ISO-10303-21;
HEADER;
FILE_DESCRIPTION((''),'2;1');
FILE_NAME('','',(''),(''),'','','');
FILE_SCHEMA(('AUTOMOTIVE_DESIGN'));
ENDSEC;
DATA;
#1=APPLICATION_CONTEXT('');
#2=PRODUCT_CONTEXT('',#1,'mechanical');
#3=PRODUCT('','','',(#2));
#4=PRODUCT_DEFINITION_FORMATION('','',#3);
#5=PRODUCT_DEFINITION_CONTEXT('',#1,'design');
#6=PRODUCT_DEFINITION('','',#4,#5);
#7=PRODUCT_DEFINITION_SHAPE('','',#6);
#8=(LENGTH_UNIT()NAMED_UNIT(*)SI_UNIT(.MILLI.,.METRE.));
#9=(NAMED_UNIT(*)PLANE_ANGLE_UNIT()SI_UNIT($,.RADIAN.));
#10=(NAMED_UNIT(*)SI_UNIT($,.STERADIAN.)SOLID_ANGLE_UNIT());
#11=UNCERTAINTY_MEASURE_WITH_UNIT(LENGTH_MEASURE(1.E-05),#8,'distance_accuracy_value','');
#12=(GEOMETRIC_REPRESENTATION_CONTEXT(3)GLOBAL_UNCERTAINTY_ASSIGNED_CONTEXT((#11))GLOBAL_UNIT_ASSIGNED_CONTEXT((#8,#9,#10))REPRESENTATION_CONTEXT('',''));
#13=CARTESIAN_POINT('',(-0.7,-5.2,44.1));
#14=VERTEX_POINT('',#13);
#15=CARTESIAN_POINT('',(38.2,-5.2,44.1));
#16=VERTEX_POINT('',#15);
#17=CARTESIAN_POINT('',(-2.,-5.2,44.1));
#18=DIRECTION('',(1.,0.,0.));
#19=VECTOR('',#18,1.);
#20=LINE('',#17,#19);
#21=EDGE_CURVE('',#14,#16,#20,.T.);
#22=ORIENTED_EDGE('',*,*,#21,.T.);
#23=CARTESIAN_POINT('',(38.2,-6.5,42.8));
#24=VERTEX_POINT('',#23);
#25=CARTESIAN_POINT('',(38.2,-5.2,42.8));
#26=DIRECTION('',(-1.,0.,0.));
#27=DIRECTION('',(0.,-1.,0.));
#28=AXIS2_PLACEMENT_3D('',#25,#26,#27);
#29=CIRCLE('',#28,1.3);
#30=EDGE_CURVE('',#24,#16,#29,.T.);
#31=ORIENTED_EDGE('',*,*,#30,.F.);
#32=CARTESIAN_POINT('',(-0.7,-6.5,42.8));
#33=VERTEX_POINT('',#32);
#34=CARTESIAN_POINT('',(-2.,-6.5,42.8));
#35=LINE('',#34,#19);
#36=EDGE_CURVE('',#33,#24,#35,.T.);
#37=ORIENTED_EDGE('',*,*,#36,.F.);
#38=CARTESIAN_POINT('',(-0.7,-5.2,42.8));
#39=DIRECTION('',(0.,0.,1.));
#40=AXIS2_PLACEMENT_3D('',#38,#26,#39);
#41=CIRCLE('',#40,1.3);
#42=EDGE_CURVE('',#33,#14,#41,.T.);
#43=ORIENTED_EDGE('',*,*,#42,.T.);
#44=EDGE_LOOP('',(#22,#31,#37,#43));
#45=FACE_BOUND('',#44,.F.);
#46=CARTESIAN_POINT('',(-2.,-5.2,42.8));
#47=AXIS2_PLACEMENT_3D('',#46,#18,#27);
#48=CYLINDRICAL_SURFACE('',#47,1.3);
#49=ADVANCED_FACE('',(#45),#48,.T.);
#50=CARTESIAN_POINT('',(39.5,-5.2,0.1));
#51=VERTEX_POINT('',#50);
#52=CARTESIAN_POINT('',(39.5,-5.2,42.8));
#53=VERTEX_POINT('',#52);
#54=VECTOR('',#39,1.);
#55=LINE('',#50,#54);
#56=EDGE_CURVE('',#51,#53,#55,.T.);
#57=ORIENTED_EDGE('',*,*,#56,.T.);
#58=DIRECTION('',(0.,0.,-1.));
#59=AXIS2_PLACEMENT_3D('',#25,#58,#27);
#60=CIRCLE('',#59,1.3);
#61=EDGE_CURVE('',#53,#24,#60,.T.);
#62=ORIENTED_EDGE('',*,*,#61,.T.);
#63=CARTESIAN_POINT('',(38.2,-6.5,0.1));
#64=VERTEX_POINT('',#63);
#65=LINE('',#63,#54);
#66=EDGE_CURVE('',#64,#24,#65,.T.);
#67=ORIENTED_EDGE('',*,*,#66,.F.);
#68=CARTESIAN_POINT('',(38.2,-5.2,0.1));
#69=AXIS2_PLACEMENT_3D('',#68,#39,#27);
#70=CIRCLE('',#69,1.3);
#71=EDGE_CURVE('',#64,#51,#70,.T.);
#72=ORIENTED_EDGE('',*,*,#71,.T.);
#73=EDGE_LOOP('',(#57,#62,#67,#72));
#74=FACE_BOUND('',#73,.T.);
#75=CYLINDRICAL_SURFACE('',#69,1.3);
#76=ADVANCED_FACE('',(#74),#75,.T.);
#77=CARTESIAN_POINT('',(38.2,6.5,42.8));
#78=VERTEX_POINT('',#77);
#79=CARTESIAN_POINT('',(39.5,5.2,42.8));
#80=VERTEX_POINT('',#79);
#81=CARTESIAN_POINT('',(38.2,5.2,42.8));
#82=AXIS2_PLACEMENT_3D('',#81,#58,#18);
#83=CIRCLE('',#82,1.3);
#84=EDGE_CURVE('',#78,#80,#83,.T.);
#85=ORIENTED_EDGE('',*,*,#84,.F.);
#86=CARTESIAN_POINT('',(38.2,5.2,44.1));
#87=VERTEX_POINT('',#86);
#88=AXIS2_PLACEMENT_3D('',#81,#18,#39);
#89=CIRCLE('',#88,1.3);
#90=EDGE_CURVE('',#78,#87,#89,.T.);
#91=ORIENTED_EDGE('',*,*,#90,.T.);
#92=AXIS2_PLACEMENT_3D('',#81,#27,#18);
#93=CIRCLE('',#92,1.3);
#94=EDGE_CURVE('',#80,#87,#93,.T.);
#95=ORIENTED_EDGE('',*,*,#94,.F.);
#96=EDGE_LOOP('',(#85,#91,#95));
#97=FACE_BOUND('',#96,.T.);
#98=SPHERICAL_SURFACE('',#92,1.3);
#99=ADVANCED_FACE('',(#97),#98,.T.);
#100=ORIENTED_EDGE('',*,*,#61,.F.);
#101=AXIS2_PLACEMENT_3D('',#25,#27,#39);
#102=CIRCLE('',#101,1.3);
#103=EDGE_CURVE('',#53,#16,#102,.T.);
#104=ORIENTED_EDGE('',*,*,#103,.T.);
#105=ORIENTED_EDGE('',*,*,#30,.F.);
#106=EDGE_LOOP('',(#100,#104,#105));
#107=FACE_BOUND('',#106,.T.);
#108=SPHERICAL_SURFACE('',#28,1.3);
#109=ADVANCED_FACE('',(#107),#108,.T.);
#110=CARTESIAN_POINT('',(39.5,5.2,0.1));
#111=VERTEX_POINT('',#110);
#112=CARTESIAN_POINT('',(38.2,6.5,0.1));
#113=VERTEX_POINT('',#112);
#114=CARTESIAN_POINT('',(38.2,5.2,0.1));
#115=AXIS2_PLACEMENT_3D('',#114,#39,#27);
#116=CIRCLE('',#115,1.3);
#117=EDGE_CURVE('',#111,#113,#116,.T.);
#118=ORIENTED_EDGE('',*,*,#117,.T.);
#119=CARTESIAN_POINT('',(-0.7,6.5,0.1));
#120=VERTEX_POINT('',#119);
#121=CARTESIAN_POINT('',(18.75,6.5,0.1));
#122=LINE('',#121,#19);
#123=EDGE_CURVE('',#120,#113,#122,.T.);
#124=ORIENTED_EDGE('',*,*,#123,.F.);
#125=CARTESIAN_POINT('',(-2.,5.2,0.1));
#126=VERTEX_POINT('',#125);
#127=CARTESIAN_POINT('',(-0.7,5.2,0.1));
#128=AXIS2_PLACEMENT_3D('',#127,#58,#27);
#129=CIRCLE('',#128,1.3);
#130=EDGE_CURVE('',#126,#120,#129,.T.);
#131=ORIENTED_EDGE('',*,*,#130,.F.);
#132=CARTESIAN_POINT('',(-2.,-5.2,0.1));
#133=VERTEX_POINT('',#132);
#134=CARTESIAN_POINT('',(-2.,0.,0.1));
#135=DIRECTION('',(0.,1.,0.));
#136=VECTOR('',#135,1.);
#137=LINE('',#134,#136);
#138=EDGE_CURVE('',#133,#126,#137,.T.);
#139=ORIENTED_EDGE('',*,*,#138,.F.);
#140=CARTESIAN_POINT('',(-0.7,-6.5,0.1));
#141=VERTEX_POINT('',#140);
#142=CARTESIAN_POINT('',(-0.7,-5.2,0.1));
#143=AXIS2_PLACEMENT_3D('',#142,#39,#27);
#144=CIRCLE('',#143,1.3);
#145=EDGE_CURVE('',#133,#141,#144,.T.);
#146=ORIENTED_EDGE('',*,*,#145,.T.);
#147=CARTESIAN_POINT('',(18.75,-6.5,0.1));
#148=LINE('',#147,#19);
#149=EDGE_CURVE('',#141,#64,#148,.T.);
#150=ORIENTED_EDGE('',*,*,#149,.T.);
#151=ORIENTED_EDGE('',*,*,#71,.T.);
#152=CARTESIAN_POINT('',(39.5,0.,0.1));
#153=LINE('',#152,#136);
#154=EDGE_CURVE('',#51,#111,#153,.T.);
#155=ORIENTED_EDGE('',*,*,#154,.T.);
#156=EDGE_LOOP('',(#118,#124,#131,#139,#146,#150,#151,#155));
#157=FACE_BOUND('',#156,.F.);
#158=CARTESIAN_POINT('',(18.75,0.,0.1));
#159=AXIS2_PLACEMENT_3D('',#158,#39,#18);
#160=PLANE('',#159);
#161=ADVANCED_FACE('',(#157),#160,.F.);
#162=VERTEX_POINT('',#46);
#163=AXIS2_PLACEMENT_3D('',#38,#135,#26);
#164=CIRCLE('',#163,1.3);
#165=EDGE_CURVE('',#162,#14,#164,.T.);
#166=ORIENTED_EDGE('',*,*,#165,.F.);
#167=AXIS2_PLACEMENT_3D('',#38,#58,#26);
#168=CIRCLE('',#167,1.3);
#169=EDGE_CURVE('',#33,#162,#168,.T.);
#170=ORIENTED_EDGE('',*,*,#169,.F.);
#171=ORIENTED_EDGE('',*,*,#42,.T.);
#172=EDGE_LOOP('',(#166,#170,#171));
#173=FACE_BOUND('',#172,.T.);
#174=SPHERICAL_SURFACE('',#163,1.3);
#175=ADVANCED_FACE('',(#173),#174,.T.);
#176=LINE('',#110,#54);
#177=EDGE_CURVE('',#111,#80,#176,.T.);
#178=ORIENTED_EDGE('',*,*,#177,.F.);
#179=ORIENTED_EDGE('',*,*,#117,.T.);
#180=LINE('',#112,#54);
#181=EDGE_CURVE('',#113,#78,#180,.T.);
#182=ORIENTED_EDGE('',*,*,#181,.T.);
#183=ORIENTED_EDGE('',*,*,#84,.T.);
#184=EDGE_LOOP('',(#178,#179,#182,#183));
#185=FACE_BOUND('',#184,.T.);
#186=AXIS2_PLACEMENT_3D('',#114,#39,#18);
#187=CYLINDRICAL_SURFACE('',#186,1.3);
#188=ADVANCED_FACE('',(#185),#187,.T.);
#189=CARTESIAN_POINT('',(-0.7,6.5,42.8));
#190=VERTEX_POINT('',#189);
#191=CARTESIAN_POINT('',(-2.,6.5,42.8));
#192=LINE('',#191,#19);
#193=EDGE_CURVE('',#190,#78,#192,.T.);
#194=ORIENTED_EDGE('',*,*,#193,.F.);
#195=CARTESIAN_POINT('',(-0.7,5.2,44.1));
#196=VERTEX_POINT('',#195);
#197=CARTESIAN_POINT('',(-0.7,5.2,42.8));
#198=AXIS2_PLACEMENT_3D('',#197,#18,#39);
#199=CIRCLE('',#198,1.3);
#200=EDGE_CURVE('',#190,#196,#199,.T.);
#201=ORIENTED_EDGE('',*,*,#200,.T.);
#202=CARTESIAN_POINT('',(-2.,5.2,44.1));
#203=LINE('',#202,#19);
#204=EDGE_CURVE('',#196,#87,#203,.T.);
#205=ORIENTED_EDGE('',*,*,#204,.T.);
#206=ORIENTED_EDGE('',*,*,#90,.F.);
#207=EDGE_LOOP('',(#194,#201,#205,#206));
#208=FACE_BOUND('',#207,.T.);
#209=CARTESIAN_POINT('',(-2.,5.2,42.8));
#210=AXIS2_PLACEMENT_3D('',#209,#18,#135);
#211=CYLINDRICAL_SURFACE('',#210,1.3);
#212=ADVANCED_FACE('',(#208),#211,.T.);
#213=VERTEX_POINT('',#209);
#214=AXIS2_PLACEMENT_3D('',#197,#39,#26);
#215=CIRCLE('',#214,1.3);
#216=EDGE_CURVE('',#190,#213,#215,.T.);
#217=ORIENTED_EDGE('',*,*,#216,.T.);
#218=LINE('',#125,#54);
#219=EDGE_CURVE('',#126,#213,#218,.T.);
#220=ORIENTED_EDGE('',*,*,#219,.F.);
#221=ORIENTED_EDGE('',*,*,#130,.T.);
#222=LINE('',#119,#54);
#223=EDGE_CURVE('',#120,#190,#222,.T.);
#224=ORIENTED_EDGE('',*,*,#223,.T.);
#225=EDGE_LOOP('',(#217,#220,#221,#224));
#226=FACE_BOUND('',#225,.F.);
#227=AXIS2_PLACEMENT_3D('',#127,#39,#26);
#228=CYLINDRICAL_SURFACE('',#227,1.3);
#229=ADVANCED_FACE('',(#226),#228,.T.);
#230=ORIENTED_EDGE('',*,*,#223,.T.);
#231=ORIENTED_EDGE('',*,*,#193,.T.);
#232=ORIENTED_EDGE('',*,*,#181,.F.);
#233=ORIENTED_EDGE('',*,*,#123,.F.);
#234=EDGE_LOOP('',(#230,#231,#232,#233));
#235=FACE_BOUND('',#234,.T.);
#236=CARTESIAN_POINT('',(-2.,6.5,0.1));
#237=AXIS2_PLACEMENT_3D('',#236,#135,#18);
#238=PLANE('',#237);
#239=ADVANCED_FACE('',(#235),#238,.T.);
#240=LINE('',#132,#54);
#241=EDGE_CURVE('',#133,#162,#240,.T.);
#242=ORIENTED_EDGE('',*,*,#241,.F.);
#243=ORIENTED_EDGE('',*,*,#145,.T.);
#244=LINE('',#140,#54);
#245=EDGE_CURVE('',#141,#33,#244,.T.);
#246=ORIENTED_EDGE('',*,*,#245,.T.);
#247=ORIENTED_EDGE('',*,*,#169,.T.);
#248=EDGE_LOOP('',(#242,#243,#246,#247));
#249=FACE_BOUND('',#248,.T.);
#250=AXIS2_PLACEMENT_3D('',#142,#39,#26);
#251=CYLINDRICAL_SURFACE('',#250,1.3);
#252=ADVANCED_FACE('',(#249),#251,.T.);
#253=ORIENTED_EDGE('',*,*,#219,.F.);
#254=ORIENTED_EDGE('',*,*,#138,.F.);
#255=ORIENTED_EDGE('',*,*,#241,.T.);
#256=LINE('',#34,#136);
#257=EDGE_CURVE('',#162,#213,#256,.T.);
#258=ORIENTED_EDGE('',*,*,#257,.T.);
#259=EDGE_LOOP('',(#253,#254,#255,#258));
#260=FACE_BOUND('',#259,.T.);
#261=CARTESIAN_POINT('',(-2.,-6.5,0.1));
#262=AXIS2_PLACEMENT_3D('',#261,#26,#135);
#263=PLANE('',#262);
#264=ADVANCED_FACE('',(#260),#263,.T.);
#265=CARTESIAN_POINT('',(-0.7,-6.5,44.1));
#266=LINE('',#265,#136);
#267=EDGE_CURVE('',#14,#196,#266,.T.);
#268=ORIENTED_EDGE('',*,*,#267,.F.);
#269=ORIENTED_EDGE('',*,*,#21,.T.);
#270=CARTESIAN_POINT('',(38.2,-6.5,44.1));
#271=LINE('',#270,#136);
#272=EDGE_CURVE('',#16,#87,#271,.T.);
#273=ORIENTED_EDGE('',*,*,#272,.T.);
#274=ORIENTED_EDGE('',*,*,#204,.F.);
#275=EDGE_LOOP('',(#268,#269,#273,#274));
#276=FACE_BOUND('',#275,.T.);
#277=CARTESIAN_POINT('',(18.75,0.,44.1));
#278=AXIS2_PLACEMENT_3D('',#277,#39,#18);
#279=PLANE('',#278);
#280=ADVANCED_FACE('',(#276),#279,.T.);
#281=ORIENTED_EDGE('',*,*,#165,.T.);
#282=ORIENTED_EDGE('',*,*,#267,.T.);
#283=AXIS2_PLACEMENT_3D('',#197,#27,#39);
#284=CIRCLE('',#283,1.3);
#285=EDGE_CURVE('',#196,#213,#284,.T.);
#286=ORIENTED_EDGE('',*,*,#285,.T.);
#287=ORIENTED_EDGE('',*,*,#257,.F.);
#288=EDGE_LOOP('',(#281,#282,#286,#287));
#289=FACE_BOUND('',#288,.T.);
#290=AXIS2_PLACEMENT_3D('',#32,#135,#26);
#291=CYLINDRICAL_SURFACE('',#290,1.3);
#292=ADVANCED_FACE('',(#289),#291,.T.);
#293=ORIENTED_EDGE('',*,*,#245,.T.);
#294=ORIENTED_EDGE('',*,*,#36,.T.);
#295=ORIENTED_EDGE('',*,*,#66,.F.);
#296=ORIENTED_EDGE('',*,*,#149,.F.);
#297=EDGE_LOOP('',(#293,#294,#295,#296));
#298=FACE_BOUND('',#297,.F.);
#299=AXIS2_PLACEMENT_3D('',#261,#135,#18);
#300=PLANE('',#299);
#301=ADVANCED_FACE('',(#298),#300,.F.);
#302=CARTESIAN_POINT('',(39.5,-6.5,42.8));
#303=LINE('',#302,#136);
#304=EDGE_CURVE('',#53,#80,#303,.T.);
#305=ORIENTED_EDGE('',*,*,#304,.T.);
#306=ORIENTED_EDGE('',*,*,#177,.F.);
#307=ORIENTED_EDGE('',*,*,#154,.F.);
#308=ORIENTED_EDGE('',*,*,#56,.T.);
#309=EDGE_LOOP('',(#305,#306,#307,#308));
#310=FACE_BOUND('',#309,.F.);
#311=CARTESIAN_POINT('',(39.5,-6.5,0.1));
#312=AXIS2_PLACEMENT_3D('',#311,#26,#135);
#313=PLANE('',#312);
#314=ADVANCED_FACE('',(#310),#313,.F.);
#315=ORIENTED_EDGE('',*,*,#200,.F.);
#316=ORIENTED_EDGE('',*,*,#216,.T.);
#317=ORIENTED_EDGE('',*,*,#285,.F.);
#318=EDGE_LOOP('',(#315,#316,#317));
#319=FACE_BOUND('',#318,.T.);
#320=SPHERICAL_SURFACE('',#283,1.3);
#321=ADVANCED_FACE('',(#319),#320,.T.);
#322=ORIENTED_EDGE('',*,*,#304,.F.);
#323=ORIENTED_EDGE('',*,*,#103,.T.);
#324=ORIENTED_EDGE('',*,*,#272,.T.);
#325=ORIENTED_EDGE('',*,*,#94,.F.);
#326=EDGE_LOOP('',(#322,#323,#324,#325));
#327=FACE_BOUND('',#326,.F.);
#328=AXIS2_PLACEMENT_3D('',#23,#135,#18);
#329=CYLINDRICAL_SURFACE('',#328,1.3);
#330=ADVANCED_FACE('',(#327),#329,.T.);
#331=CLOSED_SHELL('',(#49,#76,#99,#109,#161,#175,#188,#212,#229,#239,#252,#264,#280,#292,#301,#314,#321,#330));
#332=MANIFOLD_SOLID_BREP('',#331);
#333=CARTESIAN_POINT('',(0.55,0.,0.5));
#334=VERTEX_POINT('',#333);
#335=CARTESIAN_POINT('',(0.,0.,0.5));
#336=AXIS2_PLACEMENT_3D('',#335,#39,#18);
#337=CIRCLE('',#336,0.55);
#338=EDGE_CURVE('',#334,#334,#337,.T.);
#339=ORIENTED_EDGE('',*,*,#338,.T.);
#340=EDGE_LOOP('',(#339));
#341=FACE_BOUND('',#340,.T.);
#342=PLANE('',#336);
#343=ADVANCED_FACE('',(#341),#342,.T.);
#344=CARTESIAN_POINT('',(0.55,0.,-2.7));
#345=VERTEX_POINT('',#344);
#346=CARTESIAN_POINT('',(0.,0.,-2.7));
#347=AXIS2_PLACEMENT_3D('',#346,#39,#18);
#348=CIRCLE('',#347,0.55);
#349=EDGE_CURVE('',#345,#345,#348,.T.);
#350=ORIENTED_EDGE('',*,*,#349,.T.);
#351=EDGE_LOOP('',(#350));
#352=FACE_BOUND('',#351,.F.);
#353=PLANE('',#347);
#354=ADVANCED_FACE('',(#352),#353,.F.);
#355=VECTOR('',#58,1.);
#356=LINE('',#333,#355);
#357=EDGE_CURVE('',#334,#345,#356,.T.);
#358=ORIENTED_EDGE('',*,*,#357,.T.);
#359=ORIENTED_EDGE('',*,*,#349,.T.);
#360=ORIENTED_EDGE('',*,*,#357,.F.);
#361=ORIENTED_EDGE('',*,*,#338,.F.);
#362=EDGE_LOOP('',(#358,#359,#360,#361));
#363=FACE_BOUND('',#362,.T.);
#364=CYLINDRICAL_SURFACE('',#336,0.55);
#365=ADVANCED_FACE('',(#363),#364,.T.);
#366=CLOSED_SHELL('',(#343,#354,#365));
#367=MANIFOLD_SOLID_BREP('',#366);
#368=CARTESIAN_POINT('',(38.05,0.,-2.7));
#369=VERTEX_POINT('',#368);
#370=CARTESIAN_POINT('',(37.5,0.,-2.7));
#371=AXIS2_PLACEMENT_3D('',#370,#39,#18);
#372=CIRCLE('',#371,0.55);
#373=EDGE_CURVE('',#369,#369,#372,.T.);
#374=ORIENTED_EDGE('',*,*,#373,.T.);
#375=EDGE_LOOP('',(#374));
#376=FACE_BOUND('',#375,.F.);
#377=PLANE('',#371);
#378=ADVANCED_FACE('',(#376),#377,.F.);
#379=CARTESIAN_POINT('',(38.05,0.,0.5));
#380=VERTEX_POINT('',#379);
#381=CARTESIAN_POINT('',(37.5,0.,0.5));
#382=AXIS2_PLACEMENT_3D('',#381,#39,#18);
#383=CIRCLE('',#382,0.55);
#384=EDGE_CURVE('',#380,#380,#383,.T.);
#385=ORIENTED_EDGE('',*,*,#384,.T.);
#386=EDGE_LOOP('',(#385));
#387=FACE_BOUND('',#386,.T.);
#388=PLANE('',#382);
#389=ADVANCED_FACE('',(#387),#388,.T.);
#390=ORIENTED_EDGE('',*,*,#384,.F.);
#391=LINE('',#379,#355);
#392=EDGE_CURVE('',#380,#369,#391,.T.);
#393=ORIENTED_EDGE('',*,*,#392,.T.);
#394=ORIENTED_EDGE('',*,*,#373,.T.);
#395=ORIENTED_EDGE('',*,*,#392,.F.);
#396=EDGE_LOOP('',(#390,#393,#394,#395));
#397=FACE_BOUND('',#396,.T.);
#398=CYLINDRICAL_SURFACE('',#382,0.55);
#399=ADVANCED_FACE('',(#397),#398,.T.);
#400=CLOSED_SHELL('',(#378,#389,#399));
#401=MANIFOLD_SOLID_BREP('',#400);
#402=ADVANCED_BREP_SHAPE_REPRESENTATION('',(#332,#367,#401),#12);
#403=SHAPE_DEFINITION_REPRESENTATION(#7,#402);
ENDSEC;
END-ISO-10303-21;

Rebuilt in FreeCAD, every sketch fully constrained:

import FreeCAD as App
import Part
import Sketcher
from FreeCAD import Vector


def edges_at(feature, points):
    """Names of the edges that pass closest to the given points."""
    edges = feature.Shape.Edges
    near = lambda p: min(range(len(edges)), key=lambda i: edges[i].distToShape(Part.Vertex(*p))[0])
    return sorted({f"Edge{near(p) + 1}" for p in points})

doc = App.newDocument("Part")
body = doc.addObject("PartDesign::Body", "Body")

sketch1 = body.newObject("Sketcher::SketchObject", "Sketch")
sketch1.AttachmentSupport = (doc.getObject("XY_Plane"), [""])
sketch1.MapMode = "FlatFace"
sketch1.AttachmentOffset = App.Placement(Vector(0, 0, 0.1), App.Rotation())
sketch1.addGeometry(Part.LineSegment(Vector(-2, 6, 0), Vector(-2, -6, 0)), False)
sketch1.addGeometry(Part.LineSegment(Vector(-2, -6, 0), Vector(40, -6, 0)), False)
sketch1.addGeometry(Part.LineSegment(Vector(40, -6, 0), Vector(40, 6, 0)), False)
sketch1.addGeometry(Part.LineSegment(Vector(40, 6, 0), Vector(-2, 6, 0)), False)
sketch1.addConstraint(Sketcher.Constraint("Coincident", 0, 2, 1, 1))
sketch1.addConstraint(Sketcher.Constraint("Coincident", 1, 2, 2, 1))
sketch1.addConstraint(Sketcher.Constraint("Coincident", 2, 2, 3, 1))
sketch1.addConstraint(Sketcher.Constraint("Coincident", 3, 2, 0, 1))
sketch1.addConstraint(Sketcher.Constraint("Vertical", 0))
sketch1.addConstraint(Sketcher.Constraint("Horizontal", 1))
sketch1.addConstraint(Sketcher.Constraint("Vertical", 2))
sketch1.addConstraint(Sketcher.Constraint("Horizontal", 3))
sketch1.addConstraint(Sketcher.Constraint("DistanceY", 0, 2, 0, 1, 13.0))
sketch1.addConstraint(Sketcher.Constraint("DistanceX", 1, 1, 1, 2, 41.5))
sketch1.addConstraint(Sketcher.Constraint("DistanceX", 0, 2, -1, 1, 2.0))
sketch1.addConstraint(Sketcher.Constraint("DistanceY", 0, 2, -1, 1, 6.5))
pad1 = body.newObject("PartDesign::Pad", "Pad")
pad1.Profile = sketch1
pad1.Length = 44
doc.recompute()

fillet = body.newObject("PartDesign::Fillet", "Fillet")
fillet.Base = (pad1, edges_at(pad1, [
    (-2, 0, 44.1),
    (-2, -6.5, 22.1),
    (18.75, -6.5, 44.1),
    (39.5, -6.5, 22.1),
    (39.5, 0, 44.1),
    (39.5, 6.5, 22.1),
    (18.75, 6.5, 44.1),
    (-2, 6.5, 22.1),
]))
fillet.Radius = 1.3
body2 = doc.addObject("PartDesign::Body", "Body001")
body2.AllowCompound = True

sketch2 = body2.newObject("Sketcher::SketchObject", "Sketch001")
sketch2.AttachmentSupport = (doc.getObject("XY_Plane001"), [""])
sketch2.MapMode = "FlatFace"
sketch2.AttachmentOffset = App.Placement(Vector(0, 0, 0.5), App.Rotation())
sketch2.addGeometry(Part.Circle(Vector(0, 0, 0), Vector(0, 0, 1), 0.6), False)
sketch2.addGeometry(Part.Circle(Vector(37.5, 0, 0), Vector(0, 0, 1), 0.6), False)
sketch2.addConstraint(Sketcher.Constraint("Coincident", 0, 3, -1, 1))
sketch2.addConstraint(Sketcher.Constraint("Equal", 0, 1))
sketch2.addConstraint(Sketcher.Constraint("PointOnObject", 1, 3, -1))
sketch2.addConstraint(Sketcher.Constraint("Diameter", 0, 1.1))
sketch2.addConstraint(Sketcher.Constraint("DistanceX", -1, 1, 1, 3, 37.5))
pad2 = body2.newObject("PartDesign::Pad", "Pad001")
pad2.Profile = sketch2
pad2.Length = 3.2
pad2.Reversed = True

doc.recompute()
